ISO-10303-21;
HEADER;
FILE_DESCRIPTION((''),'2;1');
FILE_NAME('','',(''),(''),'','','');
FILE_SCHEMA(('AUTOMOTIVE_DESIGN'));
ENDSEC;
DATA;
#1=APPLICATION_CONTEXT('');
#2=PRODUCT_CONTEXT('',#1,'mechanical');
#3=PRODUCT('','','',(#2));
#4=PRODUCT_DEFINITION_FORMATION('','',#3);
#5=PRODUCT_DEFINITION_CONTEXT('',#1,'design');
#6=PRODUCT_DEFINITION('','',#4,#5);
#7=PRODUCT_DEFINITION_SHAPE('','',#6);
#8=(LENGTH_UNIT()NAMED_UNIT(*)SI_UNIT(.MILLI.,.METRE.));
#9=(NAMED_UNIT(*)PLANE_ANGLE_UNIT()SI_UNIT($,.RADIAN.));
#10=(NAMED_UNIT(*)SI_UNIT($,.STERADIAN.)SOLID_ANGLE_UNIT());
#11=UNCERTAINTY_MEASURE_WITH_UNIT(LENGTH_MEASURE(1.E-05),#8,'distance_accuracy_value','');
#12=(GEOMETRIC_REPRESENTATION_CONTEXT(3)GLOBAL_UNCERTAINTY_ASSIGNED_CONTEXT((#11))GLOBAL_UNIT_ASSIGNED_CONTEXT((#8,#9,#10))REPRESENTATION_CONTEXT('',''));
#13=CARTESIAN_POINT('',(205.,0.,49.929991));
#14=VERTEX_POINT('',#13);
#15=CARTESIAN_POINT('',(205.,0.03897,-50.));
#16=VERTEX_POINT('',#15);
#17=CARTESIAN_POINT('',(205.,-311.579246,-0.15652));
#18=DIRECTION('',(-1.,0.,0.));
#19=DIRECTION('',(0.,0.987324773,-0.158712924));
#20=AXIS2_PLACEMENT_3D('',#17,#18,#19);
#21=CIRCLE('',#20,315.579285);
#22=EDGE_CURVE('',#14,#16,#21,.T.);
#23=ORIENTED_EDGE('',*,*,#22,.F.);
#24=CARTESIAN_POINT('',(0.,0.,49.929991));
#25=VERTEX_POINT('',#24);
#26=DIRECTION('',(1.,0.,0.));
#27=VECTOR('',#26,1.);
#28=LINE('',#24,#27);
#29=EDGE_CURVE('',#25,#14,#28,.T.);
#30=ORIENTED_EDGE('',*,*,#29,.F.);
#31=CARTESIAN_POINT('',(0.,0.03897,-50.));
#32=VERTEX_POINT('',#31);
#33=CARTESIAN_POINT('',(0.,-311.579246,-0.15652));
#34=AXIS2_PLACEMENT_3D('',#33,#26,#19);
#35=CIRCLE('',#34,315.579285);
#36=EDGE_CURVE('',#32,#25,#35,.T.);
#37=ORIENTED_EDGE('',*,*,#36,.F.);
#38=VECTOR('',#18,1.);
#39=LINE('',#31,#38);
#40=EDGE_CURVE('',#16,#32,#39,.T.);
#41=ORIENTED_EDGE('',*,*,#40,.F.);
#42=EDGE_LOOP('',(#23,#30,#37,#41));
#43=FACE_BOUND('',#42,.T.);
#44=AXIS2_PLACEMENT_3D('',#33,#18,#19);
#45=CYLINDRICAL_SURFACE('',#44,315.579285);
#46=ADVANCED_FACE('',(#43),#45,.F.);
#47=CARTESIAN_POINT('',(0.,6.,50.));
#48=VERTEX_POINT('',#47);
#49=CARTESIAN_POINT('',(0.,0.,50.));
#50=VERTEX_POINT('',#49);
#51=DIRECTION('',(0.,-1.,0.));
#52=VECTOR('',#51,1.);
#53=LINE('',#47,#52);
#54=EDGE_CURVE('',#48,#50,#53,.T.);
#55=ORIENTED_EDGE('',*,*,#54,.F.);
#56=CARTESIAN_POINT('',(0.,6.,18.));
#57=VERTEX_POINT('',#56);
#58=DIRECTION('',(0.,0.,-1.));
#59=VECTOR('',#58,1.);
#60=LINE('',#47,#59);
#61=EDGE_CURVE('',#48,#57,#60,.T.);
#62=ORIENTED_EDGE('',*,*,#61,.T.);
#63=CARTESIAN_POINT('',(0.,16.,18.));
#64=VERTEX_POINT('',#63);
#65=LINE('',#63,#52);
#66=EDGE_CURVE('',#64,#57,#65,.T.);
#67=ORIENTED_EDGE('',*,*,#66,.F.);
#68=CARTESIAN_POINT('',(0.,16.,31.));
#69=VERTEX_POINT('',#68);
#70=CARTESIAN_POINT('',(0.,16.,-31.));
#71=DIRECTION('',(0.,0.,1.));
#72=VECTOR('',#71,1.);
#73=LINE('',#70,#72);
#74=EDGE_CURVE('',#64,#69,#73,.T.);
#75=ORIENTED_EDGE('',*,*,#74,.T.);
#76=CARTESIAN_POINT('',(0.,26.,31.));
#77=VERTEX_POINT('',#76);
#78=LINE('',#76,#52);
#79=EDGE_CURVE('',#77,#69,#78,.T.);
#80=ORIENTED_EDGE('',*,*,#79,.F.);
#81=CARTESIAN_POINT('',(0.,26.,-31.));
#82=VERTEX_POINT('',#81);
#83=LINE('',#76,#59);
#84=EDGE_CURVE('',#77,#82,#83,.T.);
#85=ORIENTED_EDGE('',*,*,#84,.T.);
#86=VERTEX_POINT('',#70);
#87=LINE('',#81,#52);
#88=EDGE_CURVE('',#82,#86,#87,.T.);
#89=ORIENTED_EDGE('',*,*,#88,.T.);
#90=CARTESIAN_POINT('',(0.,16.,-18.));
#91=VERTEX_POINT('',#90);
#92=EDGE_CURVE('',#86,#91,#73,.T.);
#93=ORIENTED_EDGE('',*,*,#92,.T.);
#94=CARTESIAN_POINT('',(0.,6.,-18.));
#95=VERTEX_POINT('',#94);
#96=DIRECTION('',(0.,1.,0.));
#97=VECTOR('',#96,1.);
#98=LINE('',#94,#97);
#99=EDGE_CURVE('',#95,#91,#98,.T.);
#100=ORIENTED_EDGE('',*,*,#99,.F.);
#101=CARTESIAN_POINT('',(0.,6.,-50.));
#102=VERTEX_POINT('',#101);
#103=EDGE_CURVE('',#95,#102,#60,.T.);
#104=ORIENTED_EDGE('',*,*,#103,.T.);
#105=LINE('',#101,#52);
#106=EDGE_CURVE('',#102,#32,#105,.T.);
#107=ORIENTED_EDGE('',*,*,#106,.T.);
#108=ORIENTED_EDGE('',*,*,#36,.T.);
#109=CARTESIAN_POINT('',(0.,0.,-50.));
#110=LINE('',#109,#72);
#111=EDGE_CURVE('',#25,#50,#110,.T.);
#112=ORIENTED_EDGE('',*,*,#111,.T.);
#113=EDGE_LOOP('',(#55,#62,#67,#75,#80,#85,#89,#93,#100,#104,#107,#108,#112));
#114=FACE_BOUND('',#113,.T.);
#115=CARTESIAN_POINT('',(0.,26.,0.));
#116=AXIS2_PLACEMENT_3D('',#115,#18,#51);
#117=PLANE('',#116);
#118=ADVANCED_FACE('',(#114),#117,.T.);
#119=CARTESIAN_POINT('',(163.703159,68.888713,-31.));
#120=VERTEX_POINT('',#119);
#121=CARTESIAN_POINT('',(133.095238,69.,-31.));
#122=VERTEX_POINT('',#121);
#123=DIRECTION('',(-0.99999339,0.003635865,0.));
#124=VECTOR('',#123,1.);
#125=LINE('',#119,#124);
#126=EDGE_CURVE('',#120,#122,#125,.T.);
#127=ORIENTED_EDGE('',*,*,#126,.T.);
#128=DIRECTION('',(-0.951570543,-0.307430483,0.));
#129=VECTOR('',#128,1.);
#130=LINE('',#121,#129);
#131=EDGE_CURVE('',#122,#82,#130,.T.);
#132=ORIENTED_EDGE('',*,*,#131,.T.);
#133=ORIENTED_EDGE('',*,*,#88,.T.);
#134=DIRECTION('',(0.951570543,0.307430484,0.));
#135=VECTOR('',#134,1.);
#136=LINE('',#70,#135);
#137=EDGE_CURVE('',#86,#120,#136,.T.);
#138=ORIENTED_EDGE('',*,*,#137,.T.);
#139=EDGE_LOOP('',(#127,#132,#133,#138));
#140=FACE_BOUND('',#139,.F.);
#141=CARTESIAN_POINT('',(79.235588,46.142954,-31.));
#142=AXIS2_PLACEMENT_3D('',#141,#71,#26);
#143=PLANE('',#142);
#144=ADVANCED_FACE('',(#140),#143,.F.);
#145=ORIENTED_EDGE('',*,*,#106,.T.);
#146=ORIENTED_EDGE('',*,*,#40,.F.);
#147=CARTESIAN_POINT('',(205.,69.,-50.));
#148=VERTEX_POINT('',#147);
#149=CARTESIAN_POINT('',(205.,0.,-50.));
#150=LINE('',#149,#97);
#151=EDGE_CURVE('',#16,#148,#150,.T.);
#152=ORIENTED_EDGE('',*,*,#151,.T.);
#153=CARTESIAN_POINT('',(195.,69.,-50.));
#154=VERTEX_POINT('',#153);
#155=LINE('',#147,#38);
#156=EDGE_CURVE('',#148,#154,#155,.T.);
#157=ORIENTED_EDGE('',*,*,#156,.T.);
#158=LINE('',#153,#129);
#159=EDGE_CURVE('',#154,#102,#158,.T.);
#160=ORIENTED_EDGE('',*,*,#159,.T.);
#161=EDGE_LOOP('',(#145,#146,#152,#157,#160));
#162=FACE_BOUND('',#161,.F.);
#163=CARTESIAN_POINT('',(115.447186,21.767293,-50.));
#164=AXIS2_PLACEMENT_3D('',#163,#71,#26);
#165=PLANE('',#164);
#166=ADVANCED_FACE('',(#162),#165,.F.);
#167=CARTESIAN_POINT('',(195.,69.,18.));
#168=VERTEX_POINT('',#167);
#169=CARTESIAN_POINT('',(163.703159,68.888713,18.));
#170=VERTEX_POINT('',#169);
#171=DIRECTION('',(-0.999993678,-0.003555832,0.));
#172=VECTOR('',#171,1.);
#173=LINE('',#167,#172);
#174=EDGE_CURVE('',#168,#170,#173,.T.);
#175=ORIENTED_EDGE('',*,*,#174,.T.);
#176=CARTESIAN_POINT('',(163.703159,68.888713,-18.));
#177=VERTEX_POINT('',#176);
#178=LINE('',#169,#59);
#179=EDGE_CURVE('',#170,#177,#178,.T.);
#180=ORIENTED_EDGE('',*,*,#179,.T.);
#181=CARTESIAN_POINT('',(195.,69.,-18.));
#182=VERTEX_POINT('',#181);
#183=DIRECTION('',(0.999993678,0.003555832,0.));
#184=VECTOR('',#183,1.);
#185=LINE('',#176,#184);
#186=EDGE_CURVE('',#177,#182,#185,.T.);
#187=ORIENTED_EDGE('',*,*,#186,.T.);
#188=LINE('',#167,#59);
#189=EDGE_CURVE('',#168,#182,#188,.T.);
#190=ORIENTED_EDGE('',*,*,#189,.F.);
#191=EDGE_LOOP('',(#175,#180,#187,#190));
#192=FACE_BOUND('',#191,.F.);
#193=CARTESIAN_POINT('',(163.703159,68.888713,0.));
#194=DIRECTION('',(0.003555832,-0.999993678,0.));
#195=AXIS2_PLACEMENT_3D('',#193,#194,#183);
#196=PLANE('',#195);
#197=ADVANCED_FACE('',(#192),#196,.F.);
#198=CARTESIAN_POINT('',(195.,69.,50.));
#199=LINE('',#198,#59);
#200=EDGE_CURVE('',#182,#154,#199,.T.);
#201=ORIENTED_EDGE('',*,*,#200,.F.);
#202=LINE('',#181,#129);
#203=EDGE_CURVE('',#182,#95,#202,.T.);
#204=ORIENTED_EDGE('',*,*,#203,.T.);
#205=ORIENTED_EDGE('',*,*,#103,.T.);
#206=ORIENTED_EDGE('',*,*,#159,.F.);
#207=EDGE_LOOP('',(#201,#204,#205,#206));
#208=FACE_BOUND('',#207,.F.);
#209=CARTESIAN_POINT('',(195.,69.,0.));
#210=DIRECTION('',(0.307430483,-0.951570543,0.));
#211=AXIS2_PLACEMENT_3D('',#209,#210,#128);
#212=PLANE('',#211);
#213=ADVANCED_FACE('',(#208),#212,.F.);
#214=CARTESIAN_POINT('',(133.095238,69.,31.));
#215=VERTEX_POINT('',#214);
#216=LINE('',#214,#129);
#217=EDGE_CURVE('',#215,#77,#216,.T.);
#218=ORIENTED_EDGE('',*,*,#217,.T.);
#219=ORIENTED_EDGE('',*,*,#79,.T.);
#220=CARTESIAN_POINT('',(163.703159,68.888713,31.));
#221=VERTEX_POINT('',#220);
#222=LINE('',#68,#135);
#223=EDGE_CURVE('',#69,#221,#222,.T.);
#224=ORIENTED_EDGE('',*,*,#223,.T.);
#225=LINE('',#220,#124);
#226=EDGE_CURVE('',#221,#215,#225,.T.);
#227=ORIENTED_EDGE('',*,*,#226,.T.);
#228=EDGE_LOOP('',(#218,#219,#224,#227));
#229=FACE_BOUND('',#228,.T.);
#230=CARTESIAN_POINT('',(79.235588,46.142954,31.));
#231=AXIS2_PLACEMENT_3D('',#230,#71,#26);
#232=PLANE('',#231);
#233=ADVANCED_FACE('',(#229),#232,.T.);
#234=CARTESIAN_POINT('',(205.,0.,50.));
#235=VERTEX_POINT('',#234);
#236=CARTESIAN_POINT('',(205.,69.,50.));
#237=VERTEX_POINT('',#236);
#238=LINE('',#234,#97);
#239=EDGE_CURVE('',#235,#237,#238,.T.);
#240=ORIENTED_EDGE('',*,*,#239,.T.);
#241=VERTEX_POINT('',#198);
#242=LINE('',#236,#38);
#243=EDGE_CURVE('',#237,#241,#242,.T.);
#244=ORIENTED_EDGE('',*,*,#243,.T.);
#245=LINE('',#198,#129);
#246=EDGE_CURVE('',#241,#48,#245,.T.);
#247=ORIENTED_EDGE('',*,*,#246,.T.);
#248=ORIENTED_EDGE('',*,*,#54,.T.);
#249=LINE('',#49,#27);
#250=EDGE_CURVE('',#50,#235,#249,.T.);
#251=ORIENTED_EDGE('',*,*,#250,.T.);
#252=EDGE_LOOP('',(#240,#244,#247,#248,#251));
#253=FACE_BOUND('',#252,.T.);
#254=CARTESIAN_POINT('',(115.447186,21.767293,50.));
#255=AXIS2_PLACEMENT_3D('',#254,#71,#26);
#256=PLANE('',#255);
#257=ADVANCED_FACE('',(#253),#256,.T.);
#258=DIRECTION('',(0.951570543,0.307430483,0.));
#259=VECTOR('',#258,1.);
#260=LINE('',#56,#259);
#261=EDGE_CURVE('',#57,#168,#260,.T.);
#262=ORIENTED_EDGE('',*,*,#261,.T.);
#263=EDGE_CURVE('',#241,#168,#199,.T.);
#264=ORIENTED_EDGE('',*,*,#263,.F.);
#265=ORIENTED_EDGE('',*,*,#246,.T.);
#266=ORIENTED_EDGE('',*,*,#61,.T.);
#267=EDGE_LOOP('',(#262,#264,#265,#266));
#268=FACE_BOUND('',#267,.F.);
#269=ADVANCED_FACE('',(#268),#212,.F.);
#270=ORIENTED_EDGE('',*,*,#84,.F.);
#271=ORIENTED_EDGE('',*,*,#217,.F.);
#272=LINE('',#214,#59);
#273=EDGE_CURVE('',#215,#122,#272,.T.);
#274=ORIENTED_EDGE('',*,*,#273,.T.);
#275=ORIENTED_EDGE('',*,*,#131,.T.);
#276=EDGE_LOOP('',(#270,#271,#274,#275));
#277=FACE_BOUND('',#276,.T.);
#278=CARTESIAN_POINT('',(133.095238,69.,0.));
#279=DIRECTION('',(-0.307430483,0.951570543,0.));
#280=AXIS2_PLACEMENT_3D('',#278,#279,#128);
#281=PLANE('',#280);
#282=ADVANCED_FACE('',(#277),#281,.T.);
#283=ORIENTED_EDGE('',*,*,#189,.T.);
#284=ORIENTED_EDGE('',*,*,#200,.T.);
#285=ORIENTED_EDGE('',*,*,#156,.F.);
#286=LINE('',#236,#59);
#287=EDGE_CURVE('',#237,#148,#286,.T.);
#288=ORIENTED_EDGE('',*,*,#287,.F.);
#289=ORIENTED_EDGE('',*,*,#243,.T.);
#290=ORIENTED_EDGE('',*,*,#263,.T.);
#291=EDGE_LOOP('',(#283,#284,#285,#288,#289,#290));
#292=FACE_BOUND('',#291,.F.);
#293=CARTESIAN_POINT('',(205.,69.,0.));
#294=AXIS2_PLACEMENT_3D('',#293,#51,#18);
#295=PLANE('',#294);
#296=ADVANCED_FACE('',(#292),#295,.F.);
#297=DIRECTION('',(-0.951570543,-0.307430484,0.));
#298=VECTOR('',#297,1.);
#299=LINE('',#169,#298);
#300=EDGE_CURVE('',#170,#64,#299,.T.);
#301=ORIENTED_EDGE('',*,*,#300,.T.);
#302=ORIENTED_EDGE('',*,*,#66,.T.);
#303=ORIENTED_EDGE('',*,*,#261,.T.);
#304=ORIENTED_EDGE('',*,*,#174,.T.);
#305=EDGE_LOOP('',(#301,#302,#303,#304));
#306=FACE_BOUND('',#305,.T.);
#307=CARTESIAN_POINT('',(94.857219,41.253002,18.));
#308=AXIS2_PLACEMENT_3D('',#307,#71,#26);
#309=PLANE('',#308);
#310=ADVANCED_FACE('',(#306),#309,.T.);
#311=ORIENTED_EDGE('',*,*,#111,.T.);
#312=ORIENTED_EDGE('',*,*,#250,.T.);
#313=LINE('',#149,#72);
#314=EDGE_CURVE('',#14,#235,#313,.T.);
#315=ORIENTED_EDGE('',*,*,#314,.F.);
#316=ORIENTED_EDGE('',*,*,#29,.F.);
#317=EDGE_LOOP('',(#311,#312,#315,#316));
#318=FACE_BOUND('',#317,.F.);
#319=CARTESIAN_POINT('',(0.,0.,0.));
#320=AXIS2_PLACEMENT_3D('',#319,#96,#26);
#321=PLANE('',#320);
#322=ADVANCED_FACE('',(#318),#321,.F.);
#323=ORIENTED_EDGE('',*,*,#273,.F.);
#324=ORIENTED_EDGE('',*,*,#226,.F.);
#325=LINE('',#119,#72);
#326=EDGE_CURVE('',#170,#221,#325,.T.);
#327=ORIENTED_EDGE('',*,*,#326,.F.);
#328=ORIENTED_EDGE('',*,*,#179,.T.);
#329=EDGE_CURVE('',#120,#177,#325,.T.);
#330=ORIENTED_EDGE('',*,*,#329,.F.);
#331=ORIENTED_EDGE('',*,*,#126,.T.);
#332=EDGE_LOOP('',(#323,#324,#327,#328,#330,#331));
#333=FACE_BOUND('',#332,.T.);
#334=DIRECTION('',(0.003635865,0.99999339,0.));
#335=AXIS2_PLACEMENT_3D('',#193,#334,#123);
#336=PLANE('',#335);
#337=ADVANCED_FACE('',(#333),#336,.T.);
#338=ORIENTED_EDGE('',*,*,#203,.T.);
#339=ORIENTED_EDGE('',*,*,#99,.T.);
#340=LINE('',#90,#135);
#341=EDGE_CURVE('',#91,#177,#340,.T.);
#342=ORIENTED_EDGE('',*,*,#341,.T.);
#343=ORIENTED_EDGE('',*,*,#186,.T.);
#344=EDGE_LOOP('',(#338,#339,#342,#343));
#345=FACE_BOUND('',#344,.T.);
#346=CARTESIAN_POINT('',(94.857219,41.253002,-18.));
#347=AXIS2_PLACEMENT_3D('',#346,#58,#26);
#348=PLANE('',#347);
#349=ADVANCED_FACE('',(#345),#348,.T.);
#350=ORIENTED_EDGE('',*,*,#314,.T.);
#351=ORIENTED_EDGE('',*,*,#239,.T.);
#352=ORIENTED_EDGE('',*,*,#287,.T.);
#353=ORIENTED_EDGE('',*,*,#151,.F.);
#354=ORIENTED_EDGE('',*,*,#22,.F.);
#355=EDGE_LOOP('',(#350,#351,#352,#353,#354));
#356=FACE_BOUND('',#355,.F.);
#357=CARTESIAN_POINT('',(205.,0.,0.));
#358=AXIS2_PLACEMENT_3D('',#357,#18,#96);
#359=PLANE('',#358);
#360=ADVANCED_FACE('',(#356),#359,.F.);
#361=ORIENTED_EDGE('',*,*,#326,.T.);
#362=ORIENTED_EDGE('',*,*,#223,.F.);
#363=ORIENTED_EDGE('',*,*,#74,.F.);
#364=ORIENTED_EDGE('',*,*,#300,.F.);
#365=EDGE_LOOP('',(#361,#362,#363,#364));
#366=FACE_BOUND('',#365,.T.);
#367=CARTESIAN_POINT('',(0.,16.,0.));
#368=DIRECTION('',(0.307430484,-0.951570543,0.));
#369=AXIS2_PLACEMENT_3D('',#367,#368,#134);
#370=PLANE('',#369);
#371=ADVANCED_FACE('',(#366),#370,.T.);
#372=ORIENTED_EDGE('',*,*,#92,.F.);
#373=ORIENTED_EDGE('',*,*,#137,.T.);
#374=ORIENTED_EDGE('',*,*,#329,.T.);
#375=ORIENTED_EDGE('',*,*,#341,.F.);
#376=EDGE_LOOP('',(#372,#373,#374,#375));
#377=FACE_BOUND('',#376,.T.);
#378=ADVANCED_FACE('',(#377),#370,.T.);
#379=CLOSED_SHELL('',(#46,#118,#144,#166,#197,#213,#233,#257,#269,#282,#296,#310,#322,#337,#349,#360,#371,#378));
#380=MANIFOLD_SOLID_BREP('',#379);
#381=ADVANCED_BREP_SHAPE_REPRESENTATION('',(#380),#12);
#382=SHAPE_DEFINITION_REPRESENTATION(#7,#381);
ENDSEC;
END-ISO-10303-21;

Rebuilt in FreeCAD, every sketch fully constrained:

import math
import FreeCAD as App
import Part
import Sketcher
from FreeCAD import Vector

doc = App.newDocument("Part")
params = doc.addObject("Spreadsheet::Sheet", "Params")
for row, (alias, value) in enumerate([
    ("sketch1_width", "205 mm"),
    ("sketch1_width2", "10 mm"),
    ("sketch1_height", "6 mm"),
    ("sketch1_height2", "69 mm"),
    ("pad1_length", "50 mm"),
    ("sketch2_width", "205 mm"),
    ("sketch2_width2", "10 mm"),
    ("sketch2_height", "6 mm"),
    ("sketch2_height2", "69 mm"),
    ("pad2_length", "50 mm"),
    ("sketch3_height", "10 mm"),
    ("pad3_length", "18 mm"),
    ("sketch4_height", "10 mm"),
    ("pad4_length", "18 mm"),
    ("sketch5_height", "10 mm"),
    ("pad5_length", "62 mm"),
], start=1):
    params.set(f"A{row}", alias)
    params.set(f"B{row}", "=" + value)
    params.setAlias(f"B{row}", alias)

body = doc.addObject("PartDesign::Body", "Body")

# Sketch on XY plane
sketch1 = doc.addObject("Sketcher::SketchObject", "Sketch")
body.addObject(sketch1)
sketch1.AttachmentSupport = (doc.XY_Plane, [""])
sketch1.MapMode = "FlatFace"
sketch1.addGeometry([
    Part.LineSegment(Vector(0, 6, 0), Vector(0, 0, 0)),  # 0
    Part.LineSegment(Vector(0, 0, 0), Vector(205, 0, 0)),  # 1
    Part.LineSegment(Vector(205, 0, 0), Vector(205, 69, 0)),  # 2
    Part.LineSegment(Vector(205, 69, 0), Vector(195, 69, 0)),  # 3
    Part.LineSegment(Vector(195, 69, 0), Vector(0, 6, 0)),  # 4
], False)
sketch1.addConstraint([
    Sketcher.Constraint("Coincident", 0, 2, 1, 1),
    Sketcher.Constraint("Coincident", 1, 2, 2, 1),
    Sketcher.Constraint("Coincident", 2, 2, 3, 1),
    Sketcher.Constraint("Coincident", 3, 2, 4, 1),
    Sketcher.Constraint("Coincident", 4, 2, 0, 1),
    Sketcher.Constraint("Vertical", 0),
    Sketcher.Constraint("Horizontal", 1),
    Sketcher.Constraint("Vertical", 2),
    Sketcher.Constraint("Horizontal", 3),
    Sketcher.Constraint("Coincident", 0, 2, -1, 1),
    Sketcher.Constraint("DistanceX", 1, 1, 1, 2, 205.0),
    Sketcher.Constraint("DistanceX", 3, 2, 3, 1, 10.0),
    Sketcher.Constraint("DistanceY", 0, 2, 0, 1, 6.0),
    Sketcher.Constraint("DistanceY", 2, 1, 2, 2, 69.0),
])
sketch1.setExpression("Constraints[10]", "Params.sketch1_width")
sketch1.setExpression("Constraints[11]", "Params.sketch1_width2")
sketch1.setExpression("Constraints[12]", "Params.sketch1_height")
sketch1.setExpression("Constraints[13]", "Params.sketch1_height2")
pad1 = doc.addObject("PartDesign::Pad", "Pad")
body.addObject(pad1)
pad1.Profile = sketch1
pad1.setExpression("Length", "Params.pad1_length")
pad1.Reversed = True

# Sketch on XY plane
sketch2 = doc.addObject("Sketcher::SketchObject", "Sketch001")
body.addObject(sketch2)
sketch2.AttachmentSupport = (doc.XY_Plane, [""])
sketch2.MapMode = "FlatFace"
sketch2.addGeometry([
    Part.LineSegment(Vector(0, 6, 0), Vector(0, 0, 0)),  # 0
    Part.LineSegment(Vector(0, 0, 0), Vector(205, 0, 0)),  # 1
    Part.LineSegment(Vector(205, 0, 0), Vector(205, 69, 0)),  # 2
    Part.LineSegment(Vector(205, 69, 0), Vector(195, 69, 0)),  # 3
    Part.LineSegment(Vector(195, 69, 0), Vector(0, 6, 0)),  # 4
], False)
sketch2.addConstraint([
    Sketcher.Constraint("Coincident", 0, 2, 1, 1),
    Sketcher.Constraint("Coincident", 1, 2, 2, 1),
    Sketcher.Constraint("Coincident", 2, 2, 3, 1),
    Sketcher.Constraint("Coincident", 3, 2, 4, 1),
    Sketcher.Constraint("Coincident", 4, 2, 0, 1),
    Sketcher.Constraint("Vertical", 0),
    Sketcher.Constraint("Horizontal", 1),
    Sketcher.Constraint("Vertical", 2),
    Sketcher.Constraint("Horizontal", 3),
    Sketcher.Constraint("Coincident", 0, 2, -1, 1),
    Sketcher.Constraint("DistanceX", 1, 1, 1, 2, 205.0),
    Sketcher.Constraint("DistanceX", 3, 2, 3, 1, 10.0),
    Sketcher.Constraint("DistanceY", 0, 2, 0, 1, 6.0),
    Sketcher.Constraint("DistanceY", 2, 1, 2, 2, 69.0),
])
sketch2.setExpression("Constraints[10]", "Params.sketch2_width")
sketch2.setExpression("Constraints[11]", "Params.sketch2_width2")
sketch2.setExpression("Constraints[12]", "Params.sketch2_height")
sketch2.setExpression("Constraints[13]", "Params.sketch2_height2")
pad2 = doc.addObject("PartDesign::Pad", "Pad001")
body.addObject(pad2)
pad2.Profile = sketch2
pad2.setExpression("Length", "Params.pad2_length")

# Sketch on XY plane
sketch3 = doc.addObject("Sketcher::SketchObject", "Sketch002")
body.addObject(sketch3)
sketch3.AttachmentSupport = (doc.XY_Plane, [""])
sketch3.MapMode = "FlatFace"
sketch3.addGeometry([
    Part.LineSegment(Vector(0, 16, 0), Vector(0, 6, 0)),
    Part.LineSegment(Vector(0, 6, 0), Vector(195, 69, 0)),
    Part.LineSegment(Vector(195, 69, 0), Vector(163.703159, 68.888713, 0)),
    Part.LineSegment(Vector(163.703159, 68.888713, 0), Vector(0, 16, 0)),
], False)
sketch3.addConstraint([
    Sketcher.Constraint("Coincident", 0, 2, 1, 1),
    Sketcher.Constraint("Coincident", 1, 2, 2, 1),
    Sketcher.Constraint("Coincident", 2, 2, 3, 1),
    Sketcher.Constraint("Coincident", 3, 2, 0, 1),
    Sketcher.Constraint("Vertical", 0),
    Sketcher.Constraint("PointOnObject", 0, 2, -2),
    Sketcher.Constraint("Parallel", 1, 3),
    Sketcher.Constraint("DistanceY", 0, 2, 0, 1, 10.0),
    Sketcher.Constraint("DistanceY", -1, 1, 0, 2, 6.0),
    Sketcher.Constraint("DistanceX", -1, 1, 1, 2, 195.0),
    Sketcher.Constraint("DistanceY", -1, 1, 1, 2, 69.0),
    Sketcher.Constraint("Distance", 2, 31.297039),
])
sketch3.setExpression("Constraints[7]", "Params.sketch3_height")
pad3 = doc.addObject("PartDesign::Pad", "Pad002")
body.addObject(pad3)
pad3.Profile = sketch3
pad3.setExpression("Length", "Params.pad3_length")

# Sketch on XY plane
sketch4 = doc.addObject("Sketcher::SketchObject", "Sketch003")
body.addObject(sketch4)
sketch4.AttachmentSupport = (doc.XY_Plane, [""])
sketch4.MapMode = "FlatFace"
sketch4.addGeometry([
    Part.LineSegment(Vector(195, 69, 0), Vector(0, 6, 0)),
    Part.LineSegment(Vector(0, 6, 0), Vector(0, 16, 0)),
    Part.LineSegment(Vector(0, 16, 0), Vector(163.703159, 68.888713, 0)),
    Part.LineSegment(Vector(163.703159, 68.888713, 0), Vector(195, 69, 0)),
], False)
sketch4.addConstraint([
    Sketcher.Constraint("Coincident", 0, 2, 1, 1),
    Sketcher.Constraint("Coincident", 1, 2, 2, 1),
    Sketcher.Constraint("Coincident", 2, 2, 3, 1),
    Sketcher.Constraint("Coincident", 3, 2, 0, 1),
    Sketcher.Constraint("Vertical", 1),
    Sketcher.Constraint("PointOnObject", 0, 2, -2),
    Sketcher.Constraint("Parallel", 0, 2),
    Sketcher.Constraint("DistanceY", 1, 1, 1, 2, 10.0),
    Sketcher.Constraint("DistanceY", -1, 1, 0, 2, 6.0),
    Sketcher.Constraint("DistanceX", -1, 1, 3, 2, 195.0),
    Sketcher.Constraint("DistanceY", -1, 1, 3, 2, 69.0),
    Sketcher.Constraint("Distance", 3, 31.297039),
])
sketch4.setExpression("Constraints[7]", "Params.sketch4_height")
pad4 = doc.addObject("PartDesign::Pad", "Pad003")
body.addObject(pad4)
pad4.Profile = sketch4
pad4.setExpression("Length", "Params.pad4_length")
pad4.Reversed = True

# Sketch on XY plane
sketch5 = doc.addObject("Sketcher::SketchObject", "Sketch004")
body.addObject(sketch5)
sketch5.AttachmentSupport = (doc.XY_Plane, [""])
sketch5.MapMode = "FlatFace"
sketch5.addGeometry([
    Part.LineSegment(Vector(0, 26, 0), Vector(0, 16, 0)),
    Part.LineSegment(Vector(0, 16, 0), Vector(163.703159, 68.888713, 0)),
    Part.LineSegment(Vector(163.703159, 68.888713, 0), Vector(133.095238, 69, 0)),
    Part.LineSegment(Vector(133.095238, 69, 0), Vector(0, 26, 0)),
], False)
sketch5.addConstraint([
    Sketcher.Constraint("Coincident", 0, 2, 1, 1),
    Sketcher.Constraint("Coincident", 1, 2, 2, 1),
    Sketcher.Constraint("Coincident", 2, 2, 3, 1),
    Sketcher.Constraint("Coincident", 3, 2, 0, 1),
    Sketcher.Constraint("Vertical", 0),
    Sketcher.Constraint("PointOnObject", 0, 2, -2),
    Sketcher.Constraint("Parallel", 1, 3),
    Sketcher.Constraint("DistanceY", 0, 2, 0, 1, 10.0),
    Sketcher.Constraint("DistanceY", -1, 1, 0, 2, 16.0),
    Sketcher.Constraint("DistanceY", -1, 1, 2, 2, 69.0),
    Sketcher.Constraint("Distance", 3, 139.869019),
    Sketcher.Constraint("DistanceX", -1, 1, 1, 2, 163.703159),
])
sketch5.setExpression("Constraints[7]", "Params.sketch5_height")
pad5 = doc.addObject("PartDesign::Pad", "Pad004")
body.addObject(pad5)
pad5.Profile = sketch5
pad5.setExpression("Length", "Params.pad5_length")
pad5.Midplane = True

# Sketch on YZ plane
sketch6 = doc.addObject("Sketcher::SketchObject", "Sketch005")
body.addObject(sketch6)
sketch6.AttachmentSupport = (doc.YZ_Plane, [""])
sketch6.MapMode = "FlatFace"
sketch6.addGeometry([
    Part.LineSegment(Vector(0, 49.929991, 0), Vector(0, -50.243031, 0)),
    Part.ArcOfCircle(Part.Circle(Vector(-311.579246, -0.15652, 0), Vector(0, 0, 1), 315.579285), math.radians(-9.132198), math.radians(9.132198)),
], False)
sketch6.addConstraint([
    Sketcher.Constraint("Coincident", 0, 1, 1, 2),
    Sketcher.Constraint("Coincident", 1, 1, 0, 2),
    Sketcher.Constraint("Vertical", 0),
    Sketcher.Constraint("PointOnObject", 0, 1, -2),
    Sketcher.Constraint("Radius", 1, 315.579285),
    Sketcher.Constraint("DistanceY", 0, 2, 0, 1, 100.173022),
    Sketcher.Constraint("DistanceY", 1, 3, -1, 1, 0.15652),
])
pocket1 = doc.addObject("PartDesign::Pocket", "Pocket")
body.addObject(pocket1)
pocket1.Profile = sketch6
pocket1.Type = "ThroughAll"
pocket1.Reversed = True

doc.recompute()
